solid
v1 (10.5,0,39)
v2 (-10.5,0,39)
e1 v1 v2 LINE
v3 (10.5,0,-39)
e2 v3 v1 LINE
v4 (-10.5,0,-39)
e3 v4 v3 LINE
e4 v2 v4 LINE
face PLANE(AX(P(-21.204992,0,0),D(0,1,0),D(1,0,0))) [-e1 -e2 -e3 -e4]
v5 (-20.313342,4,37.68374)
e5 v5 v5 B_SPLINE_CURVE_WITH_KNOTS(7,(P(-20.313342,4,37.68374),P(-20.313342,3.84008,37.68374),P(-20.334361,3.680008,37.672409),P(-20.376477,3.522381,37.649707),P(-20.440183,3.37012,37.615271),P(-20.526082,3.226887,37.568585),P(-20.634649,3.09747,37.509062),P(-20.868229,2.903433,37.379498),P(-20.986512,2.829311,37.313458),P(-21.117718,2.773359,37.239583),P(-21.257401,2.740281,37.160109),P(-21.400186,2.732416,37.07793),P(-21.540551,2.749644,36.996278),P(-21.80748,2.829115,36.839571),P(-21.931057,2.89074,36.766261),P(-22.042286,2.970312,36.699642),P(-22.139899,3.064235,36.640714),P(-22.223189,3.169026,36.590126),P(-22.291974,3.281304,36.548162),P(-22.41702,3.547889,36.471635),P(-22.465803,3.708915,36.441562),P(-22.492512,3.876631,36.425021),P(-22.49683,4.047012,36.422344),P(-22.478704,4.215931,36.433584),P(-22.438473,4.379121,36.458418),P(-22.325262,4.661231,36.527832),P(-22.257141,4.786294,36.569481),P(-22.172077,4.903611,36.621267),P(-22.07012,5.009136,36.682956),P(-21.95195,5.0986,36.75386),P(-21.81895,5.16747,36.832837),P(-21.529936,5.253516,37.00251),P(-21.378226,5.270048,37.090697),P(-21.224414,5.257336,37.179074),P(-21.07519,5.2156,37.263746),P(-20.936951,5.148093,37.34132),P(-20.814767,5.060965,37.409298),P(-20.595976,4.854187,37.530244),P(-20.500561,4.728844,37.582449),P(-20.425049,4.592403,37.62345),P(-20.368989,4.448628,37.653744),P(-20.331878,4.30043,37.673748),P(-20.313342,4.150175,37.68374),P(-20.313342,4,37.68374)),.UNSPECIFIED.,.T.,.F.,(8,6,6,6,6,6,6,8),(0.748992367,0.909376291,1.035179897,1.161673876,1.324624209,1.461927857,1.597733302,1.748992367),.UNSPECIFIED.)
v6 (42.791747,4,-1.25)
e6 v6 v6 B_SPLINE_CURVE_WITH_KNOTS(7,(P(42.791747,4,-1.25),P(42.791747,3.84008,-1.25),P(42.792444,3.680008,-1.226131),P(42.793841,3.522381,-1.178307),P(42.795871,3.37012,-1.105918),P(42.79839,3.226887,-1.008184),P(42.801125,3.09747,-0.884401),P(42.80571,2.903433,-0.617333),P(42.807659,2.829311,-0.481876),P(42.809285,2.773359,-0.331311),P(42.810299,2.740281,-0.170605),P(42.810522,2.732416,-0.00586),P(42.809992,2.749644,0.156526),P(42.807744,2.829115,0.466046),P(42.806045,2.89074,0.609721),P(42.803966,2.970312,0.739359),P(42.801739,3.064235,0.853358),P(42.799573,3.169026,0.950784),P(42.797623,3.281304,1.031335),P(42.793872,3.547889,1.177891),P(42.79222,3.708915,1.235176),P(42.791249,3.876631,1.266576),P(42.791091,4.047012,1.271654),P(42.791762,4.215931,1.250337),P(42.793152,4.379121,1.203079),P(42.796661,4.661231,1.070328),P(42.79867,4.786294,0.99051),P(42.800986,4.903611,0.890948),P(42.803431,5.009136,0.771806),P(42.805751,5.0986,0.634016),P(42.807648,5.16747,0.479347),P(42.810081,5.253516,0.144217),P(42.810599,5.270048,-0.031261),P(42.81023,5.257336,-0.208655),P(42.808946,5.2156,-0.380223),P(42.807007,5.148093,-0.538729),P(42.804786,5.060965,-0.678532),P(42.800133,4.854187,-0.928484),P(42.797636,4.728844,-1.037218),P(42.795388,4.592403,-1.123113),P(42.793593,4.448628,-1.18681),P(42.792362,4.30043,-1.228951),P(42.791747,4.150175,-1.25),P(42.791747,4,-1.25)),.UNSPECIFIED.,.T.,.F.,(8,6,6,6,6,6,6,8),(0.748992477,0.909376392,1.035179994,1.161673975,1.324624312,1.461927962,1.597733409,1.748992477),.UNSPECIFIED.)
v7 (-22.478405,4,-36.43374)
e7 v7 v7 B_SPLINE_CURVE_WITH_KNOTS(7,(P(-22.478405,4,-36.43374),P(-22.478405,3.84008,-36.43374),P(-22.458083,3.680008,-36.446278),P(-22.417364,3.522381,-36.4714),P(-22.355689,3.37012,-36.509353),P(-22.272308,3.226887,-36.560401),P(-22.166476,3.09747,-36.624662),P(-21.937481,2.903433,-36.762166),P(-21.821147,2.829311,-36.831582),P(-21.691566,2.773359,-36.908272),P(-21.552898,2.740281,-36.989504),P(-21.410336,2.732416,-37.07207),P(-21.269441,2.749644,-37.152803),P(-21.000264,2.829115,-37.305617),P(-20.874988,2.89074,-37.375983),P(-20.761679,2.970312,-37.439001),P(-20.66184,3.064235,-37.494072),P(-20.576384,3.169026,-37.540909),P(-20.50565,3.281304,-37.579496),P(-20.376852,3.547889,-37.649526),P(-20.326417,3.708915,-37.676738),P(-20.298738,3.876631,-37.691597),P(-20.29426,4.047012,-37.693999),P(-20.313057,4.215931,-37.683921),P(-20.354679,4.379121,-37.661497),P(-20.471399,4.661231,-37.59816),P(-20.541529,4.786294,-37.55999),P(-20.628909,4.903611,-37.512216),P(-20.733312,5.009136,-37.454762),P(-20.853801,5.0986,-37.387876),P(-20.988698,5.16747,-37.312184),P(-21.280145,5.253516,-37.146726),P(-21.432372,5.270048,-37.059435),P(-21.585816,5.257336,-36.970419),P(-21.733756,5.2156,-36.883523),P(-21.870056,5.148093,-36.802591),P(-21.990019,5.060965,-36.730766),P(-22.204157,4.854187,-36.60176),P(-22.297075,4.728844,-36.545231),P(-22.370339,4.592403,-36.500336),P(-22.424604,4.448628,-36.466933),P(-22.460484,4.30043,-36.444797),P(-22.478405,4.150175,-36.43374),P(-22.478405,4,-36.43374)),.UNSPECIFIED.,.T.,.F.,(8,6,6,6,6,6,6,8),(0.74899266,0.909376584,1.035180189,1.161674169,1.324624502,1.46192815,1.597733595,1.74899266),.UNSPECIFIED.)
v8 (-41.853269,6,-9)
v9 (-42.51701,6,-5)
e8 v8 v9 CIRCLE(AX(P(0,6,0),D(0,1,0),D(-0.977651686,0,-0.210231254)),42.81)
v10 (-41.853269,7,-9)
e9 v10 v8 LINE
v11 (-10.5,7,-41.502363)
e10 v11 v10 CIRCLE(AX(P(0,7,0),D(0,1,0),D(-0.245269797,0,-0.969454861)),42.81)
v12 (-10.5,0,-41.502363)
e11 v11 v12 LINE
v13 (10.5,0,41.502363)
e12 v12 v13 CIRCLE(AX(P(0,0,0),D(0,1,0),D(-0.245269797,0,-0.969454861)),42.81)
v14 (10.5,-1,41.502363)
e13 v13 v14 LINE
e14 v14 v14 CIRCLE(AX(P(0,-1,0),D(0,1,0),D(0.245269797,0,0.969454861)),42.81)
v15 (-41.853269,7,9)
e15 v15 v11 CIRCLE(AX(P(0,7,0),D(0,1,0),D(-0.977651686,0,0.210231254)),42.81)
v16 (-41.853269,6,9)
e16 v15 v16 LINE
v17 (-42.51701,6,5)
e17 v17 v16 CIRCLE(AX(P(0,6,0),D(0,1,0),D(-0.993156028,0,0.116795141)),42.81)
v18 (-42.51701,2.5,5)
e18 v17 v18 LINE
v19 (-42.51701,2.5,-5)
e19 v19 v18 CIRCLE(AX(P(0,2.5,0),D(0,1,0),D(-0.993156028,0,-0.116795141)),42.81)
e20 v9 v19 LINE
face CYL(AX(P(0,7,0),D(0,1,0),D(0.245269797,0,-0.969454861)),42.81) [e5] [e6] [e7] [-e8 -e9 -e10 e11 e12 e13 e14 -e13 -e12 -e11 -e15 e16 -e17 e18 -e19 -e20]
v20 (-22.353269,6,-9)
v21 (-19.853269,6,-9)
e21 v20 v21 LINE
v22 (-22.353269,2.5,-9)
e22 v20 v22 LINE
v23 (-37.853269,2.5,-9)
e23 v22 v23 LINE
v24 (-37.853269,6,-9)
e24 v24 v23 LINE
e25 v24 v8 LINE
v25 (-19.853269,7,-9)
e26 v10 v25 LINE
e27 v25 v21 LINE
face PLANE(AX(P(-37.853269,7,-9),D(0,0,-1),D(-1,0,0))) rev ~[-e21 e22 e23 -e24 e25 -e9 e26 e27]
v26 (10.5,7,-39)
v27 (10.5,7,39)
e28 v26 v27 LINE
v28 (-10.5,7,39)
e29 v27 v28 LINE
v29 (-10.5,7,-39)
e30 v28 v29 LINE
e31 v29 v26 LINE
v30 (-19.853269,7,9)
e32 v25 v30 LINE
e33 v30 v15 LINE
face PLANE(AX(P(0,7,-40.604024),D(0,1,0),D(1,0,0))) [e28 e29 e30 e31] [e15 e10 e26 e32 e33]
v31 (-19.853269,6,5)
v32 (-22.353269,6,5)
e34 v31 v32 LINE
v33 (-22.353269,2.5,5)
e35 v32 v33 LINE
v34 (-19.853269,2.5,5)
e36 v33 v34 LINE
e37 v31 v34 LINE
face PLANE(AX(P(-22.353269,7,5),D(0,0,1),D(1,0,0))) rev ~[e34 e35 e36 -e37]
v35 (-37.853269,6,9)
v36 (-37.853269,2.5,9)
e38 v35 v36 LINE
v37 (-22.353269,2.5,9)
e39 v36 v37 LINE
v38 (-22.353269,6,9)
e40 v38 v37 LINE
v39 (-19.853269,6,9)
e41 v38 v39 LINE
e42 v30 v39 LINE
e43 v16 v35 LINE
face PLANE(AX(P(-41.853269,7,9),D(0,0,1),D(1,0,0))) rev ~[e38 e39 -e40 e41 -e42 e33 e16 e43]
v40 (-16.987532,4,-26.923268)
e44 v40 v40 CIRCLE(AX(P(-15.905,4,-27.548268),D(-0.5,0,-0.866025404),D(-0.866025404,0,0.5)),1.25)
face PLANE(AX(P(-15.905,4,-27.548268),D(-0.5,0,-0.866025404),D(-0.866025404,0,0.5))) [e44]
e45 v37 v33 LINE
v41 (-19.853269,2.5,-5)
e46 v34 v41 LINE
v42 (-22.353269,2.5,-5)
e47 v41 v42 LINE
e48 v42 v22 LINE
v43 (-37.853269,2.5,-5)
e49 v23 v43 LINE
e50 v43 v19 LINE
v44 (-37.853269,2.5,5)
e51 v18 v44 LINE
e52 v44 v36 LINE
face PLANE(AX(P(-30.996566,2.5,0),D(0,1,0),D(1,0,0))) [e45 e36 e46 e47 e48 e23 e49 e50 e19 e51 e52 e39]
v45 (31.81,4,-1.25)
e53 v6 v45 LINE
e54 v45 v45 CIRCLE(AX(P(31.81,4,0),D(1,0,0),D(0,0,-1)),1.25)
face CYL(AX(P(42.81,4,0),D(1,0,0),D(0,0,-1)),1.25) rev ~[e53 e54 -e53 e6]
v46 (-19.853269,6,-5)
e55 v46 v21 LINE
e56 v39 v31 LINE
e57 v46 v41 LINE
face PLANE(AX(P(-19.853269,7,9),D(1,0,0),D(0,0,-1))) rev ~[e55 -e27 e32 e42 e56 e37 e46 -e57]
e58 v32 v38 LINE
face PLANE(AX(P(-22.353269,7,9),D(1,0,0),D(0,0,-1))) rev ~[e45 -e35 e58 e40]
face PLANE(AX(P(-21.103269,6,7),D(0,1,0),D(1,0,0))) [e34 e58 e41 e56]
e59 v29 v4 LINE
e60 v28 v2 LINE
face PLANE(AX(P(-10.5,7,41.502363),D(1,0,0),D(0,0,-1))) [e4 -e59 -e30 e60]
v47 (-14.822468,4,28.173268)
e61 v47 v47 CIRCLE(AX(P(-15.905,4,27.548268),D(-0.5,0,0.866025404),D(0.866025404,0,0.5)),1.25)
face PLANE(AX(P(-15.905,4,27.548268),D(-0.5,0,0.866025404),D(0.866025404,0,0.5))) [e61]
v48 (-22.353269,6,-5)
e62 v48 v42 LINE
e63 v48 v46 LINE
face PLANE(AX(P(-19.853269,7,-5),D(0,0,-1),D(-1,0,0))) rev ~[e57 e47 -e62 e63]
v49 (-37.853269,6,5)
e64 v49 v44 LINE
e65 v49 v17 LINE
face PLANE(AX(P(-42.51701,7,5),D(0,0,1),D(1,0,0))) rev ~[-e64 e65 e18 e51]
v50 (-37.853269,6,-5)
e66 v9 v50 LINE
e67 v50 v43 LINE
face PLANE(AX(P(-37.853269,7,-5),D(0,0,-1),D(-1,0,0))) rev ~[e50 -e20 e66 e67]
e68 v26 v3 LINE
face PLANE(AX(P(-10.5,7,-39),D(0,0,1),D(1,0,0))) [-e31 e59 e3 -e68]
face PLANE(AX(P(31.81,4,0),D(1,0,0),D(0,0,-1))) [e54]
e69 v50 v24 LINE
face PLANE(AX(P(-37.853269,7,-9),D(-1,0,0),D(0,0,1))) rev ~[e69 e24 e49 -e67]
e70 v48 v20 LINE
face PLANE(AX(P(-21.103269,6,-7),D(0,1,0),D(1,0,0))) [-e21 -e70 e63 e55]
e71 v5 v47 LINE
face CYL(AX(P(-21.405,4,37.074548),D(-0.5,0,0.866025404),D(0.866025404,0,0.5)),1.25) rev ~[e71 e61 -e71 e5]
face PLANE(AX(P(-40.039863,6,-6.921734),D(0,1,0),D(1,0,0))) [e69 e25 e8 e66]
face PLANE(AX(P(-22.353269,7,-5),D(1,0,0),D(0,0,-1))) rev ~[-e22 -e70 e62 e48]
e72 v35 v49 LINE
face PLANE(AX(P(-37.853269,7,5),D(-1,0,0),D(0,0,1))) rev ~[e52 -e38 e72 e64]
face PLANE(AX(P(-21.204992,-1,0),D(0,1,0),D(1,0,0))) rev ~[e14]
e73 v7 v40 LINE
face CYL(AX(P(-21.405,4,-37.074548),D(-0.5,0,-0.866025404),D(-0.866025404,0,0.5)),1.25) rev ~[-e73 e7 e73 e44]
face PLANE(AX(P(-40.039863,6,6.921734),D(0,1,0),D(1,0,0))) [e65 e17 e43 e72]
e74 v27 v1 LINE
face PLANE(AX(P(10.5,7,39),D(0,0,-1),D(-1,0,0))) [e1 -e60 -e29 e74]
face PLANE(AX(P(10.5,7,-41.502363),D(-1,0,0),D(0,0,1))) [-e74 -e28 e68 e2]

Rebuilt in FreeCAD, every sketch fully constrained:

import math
import FreeCAD as App
import Part
import Sketcher
Q = App.Units.Quantity

doc = App.newDocument("Part")
body = doc.addObject("PartDesign::Body", "Body")

# Sketch on XZ plane
sketch1 = doc.addObject("Sketcher::SketchObject", "Sketch")
body.addObject(sketch1)
sketch1.AttachmentSupport = (doc.XZ_Plane, [""])
sketch1.MapMode = "FlatFace"
sketch1.addGeometry(Part.Circle(App.Vector(0, 0, 0), App.Vector(0, 0, 1), 43), False)
sketch1.addConstraint([
    Sketcher.Constraint("Coincident", 0, 3, -1, 1),
    Sketcher.Constraint("Diameter", 0, Q("85.62 mm")),
])
pad1 = doc.addObject("PartDesign::Pad", "Pad")
body.addObject(pad1)
pad1.Profile = sketch1
pad1.Length = 1

# Sketch on XZ plane
sketch2 = doc.addObject("Sketcher::SketchObject", "Sketch001")
body.addObject(sketch2)
sketch2.AttachmentSupport = (doc.XZ_Plane, [""])
sketch2.MapMode = "FlatFace"
sketch2.AttachmentOffset = App.Placement(App.Vector(0, 0, -7), App.Rotation())
sketch2.addGeometry([
    Part.LineSegment(App.Vector(10, -42, 0), App.Vector(10, 42, 0)),
    Part.ArcOfCircle(Part.Circle(App.Vector(0, 0, 0), App.Vector(0, 0, 1), 43), math.radians(-76), math.radians(76)),
    Part.ArcOfCircle(Part.Circle(App.Vector(0, 0, 0), App.Vector(0, 0, 1), 43), math.radians(104), math.radians(256)),
    Part.LineSegment(App.Vector(-10, 42, 0), App.Vector(-10, -42, 0)),
], False)
sketch2.addConstraint([
    Sketcher.Constraint("Coincident", 0, 1, 1, 1),
    Sketcher.Constraint("Coincident", 1, 2, 0, 2),
    Sketcher.Constraint("Coincident", 2, 1, 3, 1),
    Sketcher.Constraint("Coincident", 3, 2, 2, 2),
    Sketcher.Constraint("Vertical", 0),
    Sketcher.Constraint("Vertical", 3),
    Sketcher.Constraint("Coincident", 1, 3, -1, 1),
    Sketcher.Constraint("Coincident", 2, 3, -1, 1),
    Sketcher.Constraint("Equal", 1, 2),
    Sketcher.Constraint("Horizontal", 1, 2, 2, 1),
    Sketcher.Constraint("Radius", 1, Q("42.81 mm")),
    Sketcher.Constraint("DistanceX", 2, 1, 1, 2, Q("21 mm")),
])
pad2 = doc.addObject("PartDesign::Pad", "Pad001")
body.addObject(pad2)
pad2.Profile = sketch2
pad2.Length = 7

# Sketch on XZ plane
sketch3 = doc.addObject("Sketcher::SketchObject", "Sketch002")
body.addObject(sketch3)
sketch3.AttachmentSupport = (doc.XZ_Plane, [""])
sketch3.MapMode = "FlatFace"
sketch3.AttachmentOffset = App.Placement(App.Vector(0, 0, -7), App.Rotation())
sketch3.addGeometry([
    Part.LineSegment(App.Vector(-37.9, 5, 0), App.Vector(-42.5, 5, 0)),  # 0
    Part.ArcOfCircle(Part.Circle(App.Vector(0, 0, 0), App.Vector(0, 0, 1), 42.8), math.radians(167.86), math.radians(173.29)),  # 1
    Part.LineSegment(App.Vector(-41.9, 9, 0), App.Vector(-37.9, 9, 0)),  # 2
    Part.LineSegment(App.Vector(-37.9, 9, 0), App.Vector(-37.9, 5, 0)),  # 3
    Part.LineSegment(App.Vector(-37.9, -9, 0), App.Vector(-41.9, -9, 0)),  # 4
    Part.ArcOfCircle(Part.Circle(App.Vector(0, 0, 0), App.Vector(0, 0, 1), 42.8), math.radians(-173.29), math.radians(-167.86)),  # 5
    Part.LineSegment(App.Vector(-42.5, -5, 0), App.Vector(-37.9, -5, 0)),  # 6
    Part.LineSegment(App.Vector(-37.9, -5, 0), App.Vector(-37.9, -9, 0)),  # 7
    Part.LineSegment(App.Vector(-22.4, -9, 0), App.Vector(-22.4, -5, 0)),  # 8
    Part.LineSegment(App.Vector(-22.4, -5, 0), App.Vector(-19.9, -5, 0)),  # 9
    Part.LineSegment(App.Vector(-19.9, -5, 0), App.Vector(-19.9, -9, 0)),  # 10
    Part.LineSegment(App.Vector(-19.9, -9, 0), App.Vector(-22.4, -9, 0)),  # 11
    Part.LineSegment(App.Vector(-19.9, 9, 0), App.Vector(-19.9, 5, 0)),  # 12
    Part.LineSegment(App.Vector(-19.9, 5, 0), App.Vector(-22.4, 5, 0)),  # 13
    Part.LineSegment(App.Vector(-22.4, 5, 0), App.Vector(-22.4, 9, 0)),  # 14
    Part.LineSegment(App.Vector(-22.4, 9, 0), App.Vector(-19.9, 9, 0)),  # 15
], False)
sketch3.addConstraint([
    Sketcher.Constraint("Coincident", 0, 2, 1, 2),
    Sketcher.Constraint("Coincident", 1, 1, 2, 1),
    Sketcher.Constraint("Coincident", 2, 2, 3, 1),
    Sketcher.Constraint("Coincident", 3, 2, 0, 1),
    Sketcher.Constraint("Coincident", 4, 2, 5, 2),
    Sketcher.Constraint("Coincident", 5, 1, 6, 1),
    Sketcher.Constraint("Coincident", 6, 2, 7, 1),
    Sketcher.Constraint("Coincident", 7, 2, 4, 1),
    Sketcher.Constraint("Coincident", 8, 2, 9, 1),
    Sketcher.Constraint("Coincident", 9, 2, 10, 1),
    Sketcher.Constraint("Coincident", 10, 2, 11, 1),
    Sketcher.Constraint("Coincident", 11, 2, 8, 1),
    Sketcher.Constraint("Coincident", 12, 2, 13, 1),
    Sketcher.Constraint("Coincident", 13, 2, 14, 1),
    Sketcher.Constraint("Coincident", 14, 2, 15, 1),
    Sketcher.Constraint("Coincident", 15, 2, 12, 1),
    Sketcher.Constraint("Horizontal", 0),
    Sketcher.Constraint("Horizontal", 2),
    Sketcher.Constraint("Vertical", 3),
    Sketcher.Constraint("Horizontal", 4),
    Sketcher.Constraint("Horizontal", 6),
    Sketcher.Constraint("Vertical", 7),
    Sketcher.Constraint("Vertical", 8),
    Sketcher.Constraint("Horizontal", 9),
    Sketcher.Constraint("Vertical", 10),
    Sketcher.Constraint("Horizontal", 11),
    Sketcher.Constraint("Vertical", 12),
    Sketcher.Constraint("Horizontal", 13),
    Sketcher.Constraint("Vertical", 14),
    Sketcher.Constraint("Horizontal", 15),
    Sketcher.Constraint("Coincident", 1, 3, -1, 1),
    Sketcher.Constraint("Coincident", 5, 3, -1, 1),
    Sketcher.Constraint("Equal", 1, 5),
    Sketcher.Constraint("Symmetric", 3, 2, 6, 2, -1),
    Sketcher.Constraint("Symmetric", 9, 2, 12, 2, -1),
    Sketcher.Constraint("Symmetric", 11, 2, 14, 2, -1),
    Sketcher.Constraint("Horizontal", 6, 2, 8, 2),
    Sketcher.Constraint("Horizontal", 7, 2, 10, 2),
    Sketcher.Constraint("Horizontal", 2, 2, 14, 2),
    Sketcher.Constraint("Equal", 4, 3),
    Sketcher.Constraint("DistanceX", 2, 1, 2, 2, Q("4 mm")),
    Sketcher.Constraint("Radius", 1, Q("42.81 mm")),
    Sketcher.Constraint("DistanceX", 9, 1, 9, 2, Q("2.5 mm")),
    Sketcher.Constraint("DistanceY", -1, 1, 0, 2, Q("5 mm")),
    Sketcher.Constraint("DistanceX", 6, 2, 9, 2, Q("18 mm")),
])
pocket1 = doc.addObject("PartDesign::Pocket", "Pocket")
body.addObject(pocket1)
pocket1.Profile = sketch3
pocket1.Length = 1
pocket1.Reversed = True

# Sketch on XZ plane
sketch4 = doc.addObject("Sketcher::SketchObject", "Sketch003")
body.addObject(sketch4)
sketch4.AttachmentSupport = (doc.XZ_Plane, [""])
sketch4.MapMode = "FlatFace"
sketch4.AttachmentOffset = App.Placement(App.Vector(0, 0, -7), App.Rotation())
sketch4.addGeometry([
    Part.LineSegment(App.Vector(-22.4, -9, 0), App.Vector(-37.9, -9, 0)),  # 0
    Part.LineSegment(App.Vector(-37.9, -9, 0), App.Vector(-37.9, -5, 0)),  # 1
    Part.LineSegment(App.Vector(-37.9, -5, 0), App.Vector(-42.5, -5, 0)),  # 2
    Part.ArcOfCircle(Part.Circle(App.Vector(0, 0, 0), App.Vector(0, 0, 1), 42.8), math.radians(173.29), math.radians(186.71)),  # 3
    Part.LineSegment(App.Vector(-42.5, 5, 0), App.Vector(-37.9, 5, 0)),  # 4
    Part.LineSegment(App.Vector(-37.9, 5, 0), App.Vector(-37.9, 9, 0)),  # 5
    Part.LineSegment(App.Vector(-37.9, 9, 0), App.Vector(-22.4, 9, 0)),  # 6
    Part.LineSegment(App.Vector(-22.4, 9, 0), App.Vector(-22.4, 5, 0)),  # 7
    Part.LineSegment(App.Vector(-22.4, 5, 0), App.Vector(-19.9, 5, 0)),  # 8
    Part.LineSegment(App.Vector(-19.9, 5, 0), App.Vector(-19.9, -5, 0)),  # 9
    Part.LineSegment(App.Vector(-19.9, -5, 0), App.Vector(-22.4, -5, 0)),  # 10
    Part.LineSegment(App.Vector(-22.4, -5, 0), App.Vector(-22.4, -9, 0)),  # 11
], False)
sketch4.addConstraint([
    Sketcher.Constraint("Coincident", 0, 2, 1, 1),
    Sketcher.Constraint("Coincident", 1, 2, 2, 1),
    Sketcher.Constraint("Coincident", 2, 2, 3, 2),
    Sketcher.Constraint("Coincident", 3, 1, 4, 1),
    Sketcher.Constraint("Coincident", 4, 2, 5, 1),
    Sketcher.Constraint("Coincident", 5, 2, 6, 1),
    Sketcher.Constraint("Coincident", 6, 2, 7, 1),
    Sketcher.Constraint("Coincident", 7, 2, 8, 1),
    Sketcher.Constraint("Coincident", 8, 2, 9, 1),
    Sketcher.Constraint("Coincident", 9, 2, 10, 1),
    Sketcher.Constraint("Coincident", 10, 2, 11, 1),
    Sketcher.Constraint("Coincident", 11, 2, 0, 1),
    Sketcher.Constraint("Horizontal", 0),
    Sketcher.Constraint("Vertical", 1),
    Sketcher.Constraint("Horizontal", 2),
    Sketcher.Constraint("Horizontal", 4),
    Sketcher.Constraint("Vertical", 5),
    Sketcher.Constraint("Horizontal", 6),
    Sketcher.Constraint("Vertical", 7),
    Sketcher.Constraint("Horizontal", 8),
    Sketcher.Constraint("Vertical", 9),
    Sketcher.Constraint("Horizontal", 10),
    Sketcher.Constraint("Vertical", 11),
    Sketcher.Constraint("Coincident", 3, 3, -1, 1),
    Sketcher.Constraint("Symmetric", 1, 2, 4, 2, -1),
    Sketcher.Constraint("Symmetric", 7, 2, 10, 2, -1),
    Sketcher.Constraint("Horizontal", 4, 2, 7, 2),
    Sketcher.Constraint("Equal", 1, 5),
    Sketcher.Constraint("DistanceY", 1, 1, 1, 2, Q("4 mm")),
    Sketcher.Constraint("DistanceY", 9, 2, 9, 1, Q("10 mm")),
    Sketcher.Constraint("Radius", 3, Q("42.81 mm")),
    Sketcher.Constraint("DistanceX", 0, 2, 0, 1, Q("15.5 mm")),
    Sketcher.Constraint("DistanceX", 8, 1, 8, 2, Q("2.5 mm")),
    Sketcher.Constraint("DistanceX", 2, 2, 2, 1, Q("4.663741 mm")),
])
pocket2 = doc.addObject("PartDesign::Pocket", "Pocket001")
body.addObject(pocket2)
pocket2.Profile = sketch4
pocket2.Length = 4.5
pocket2.Reversed = True

# Sketch on XZ plane
sketch5 = doc.addObject("Sketcher::SketchObject", "Sketch004")
body.addObject(sketch5)
sketch5.AttachmentSupport = (doc.XZ_Plane, [""])
sketch5.MapMode = "FlatFace"
sketch5.AttachmentOffset = App.Placement(App.Vector(0, 0, -7), App.Rotation())
sketch5.addGeometry([
    Part.LineSegment(App.Vector(-10.5, -41.5, 0), App.Vector(-10.5, -39, 0)),  # 0
    Part.LineSegment(App.Vector(-10.5, -39, 0), App.Vector(10.5, -39, 0)),  # 1
    Part.LineSegment(App.Vector(10.5, -39, 0), App.Vector(10.5, -41.5, 0)),  # 2
    Part.ArcOfCircle(Part.Circle(App.Vector(0, 0, 0), App.Vector(0, 0, 1), 42.8), math.radians(-104), math.radians(-76)),  # 3
    Part.LineSegment(App.Vector(10.5, 39, 0), App.Vector(-10.5, 39, 0)),  # 4
    Part.LineSegment(App.Vector(-10.5, 39, 0), App.Vector(-10.5, 41.5, 0)),  # 5
    Part.ArcOfCircle(Part.Circle(App.Vector(0, 0, 0), App.Vector(0, 0, 1), 42.8), math.radians(76), math.radians(104)),  # 6
    Part.LineSegment(App.Vector(10.5, 41.5, 0), App.Vector(10.5, 39, 0)),  # 7
], False)
sketch5.addConstraint([
    Sketcher.Constraint("Coincident", 0, 2, 1, 1),
    Sketcher.Constraint("Coincident", 1, 2, 2, 1),
    Sketcher.Constraint("Coincident", 2, 2, 3, 2),
    Sketcher.Constraint("Coincident", 3, 1, 0, 1),
    Sketcher.Constraint("Coincident", 4, 2, 5, 1),
    Sketcher.Constraint("Coincident", 5, 2, 6, 2),
    Sketcher.Constraint("Coincident", 6, 1, 7, 1),
    Sketcher.Constraint("Coincident", 7, 2, 4, 1),
    Sketcher.Constraint("Vertical", 0),
    Sketcher.Constraint("Horizontal", 1),
    Sketcher.Constraint("Vertical", 2),
    Sketcher.Constraint("Horizontal", 4),
    Sketcher.Constraint("Vertical", 5),
    Sketcher.Constraint("Vertical", 7),
    Sketcher.Constraint("Coincident", 3, 3, -1, 1),
    Sketcher.Constraint("Coincident", 6, 3, -1, 1),
    Sketcher.Constraint("Equal", 3, 6),
    Sketcher.Constraint("Symmetric", 1, 2, 4, 2, -1, 1),
    Sketcher.Constraint("Horizontal", 2, 2, 3, 1),
    Sketcher.Constraint("Horizontal", 5, 2, 6, 1),
    Sketcher.Constraint("DistanceX", 1, 1, 1, 2, Q("21 mm")),
    Sketcher.Constraint("Radius", 3, Q("42.81 mm")),
    Sketcher.Constraint("DistanceY", 0, 2, -1, 1, Q("39 mm")),
])
pad3 = doc.addObject("PartDesign::Pad", "Pad002")
body.addObject(pad3)
pad3.Profile = sketch5
pad3.Length = 7

# Sketch on YZ plane
sketch6 = doc.addObject("Sketcher::SketchObject", "Sketch005")
body.addObject(sketch6)
sketch6.AttachmentSupport = (doc.YZ_Plane, [""])
sketch6.MapMode = "FlatFace"
sketch6.AttachmentOffset = App.Placement(App.Vector(0, 0, 42.81), App.Rotation())
sketch6.addGeometry(Part.Circle(App.Vector(4, 0, 0), App.Vector(0, 0, 1), 1.2), False)
sketch6.addConstraint([
    Sketcher.Constraint("PointOnObject", 0, 3, -1),
    Sketcher.Constraint("Diameter", 0, Q("2.5 mm")),
    Sketcher.Constraint("DistanceX", -1, 1, 0, 3, Q("4 mm")),
])
pocket3 = doc.addObject("PartDesign::Pocket", "Pocket002")
body.addObject(pocket3)
pocket3.Profile = sketch6
pocket3.Length = 11
doc.recompute()

polarpattern = doc.addObject("PartDesign::PolarPattern", "PolarPattern")
body.addObject(polarpattern)
polarpattern.Originals = [pocket3]
polarpattern.Axis = (doc.Y_Axis, [""])
polarpattern.Angle = 360
polarpattern.Occurrences = 3
body.Tip = polarpattern

doc.recompute()
